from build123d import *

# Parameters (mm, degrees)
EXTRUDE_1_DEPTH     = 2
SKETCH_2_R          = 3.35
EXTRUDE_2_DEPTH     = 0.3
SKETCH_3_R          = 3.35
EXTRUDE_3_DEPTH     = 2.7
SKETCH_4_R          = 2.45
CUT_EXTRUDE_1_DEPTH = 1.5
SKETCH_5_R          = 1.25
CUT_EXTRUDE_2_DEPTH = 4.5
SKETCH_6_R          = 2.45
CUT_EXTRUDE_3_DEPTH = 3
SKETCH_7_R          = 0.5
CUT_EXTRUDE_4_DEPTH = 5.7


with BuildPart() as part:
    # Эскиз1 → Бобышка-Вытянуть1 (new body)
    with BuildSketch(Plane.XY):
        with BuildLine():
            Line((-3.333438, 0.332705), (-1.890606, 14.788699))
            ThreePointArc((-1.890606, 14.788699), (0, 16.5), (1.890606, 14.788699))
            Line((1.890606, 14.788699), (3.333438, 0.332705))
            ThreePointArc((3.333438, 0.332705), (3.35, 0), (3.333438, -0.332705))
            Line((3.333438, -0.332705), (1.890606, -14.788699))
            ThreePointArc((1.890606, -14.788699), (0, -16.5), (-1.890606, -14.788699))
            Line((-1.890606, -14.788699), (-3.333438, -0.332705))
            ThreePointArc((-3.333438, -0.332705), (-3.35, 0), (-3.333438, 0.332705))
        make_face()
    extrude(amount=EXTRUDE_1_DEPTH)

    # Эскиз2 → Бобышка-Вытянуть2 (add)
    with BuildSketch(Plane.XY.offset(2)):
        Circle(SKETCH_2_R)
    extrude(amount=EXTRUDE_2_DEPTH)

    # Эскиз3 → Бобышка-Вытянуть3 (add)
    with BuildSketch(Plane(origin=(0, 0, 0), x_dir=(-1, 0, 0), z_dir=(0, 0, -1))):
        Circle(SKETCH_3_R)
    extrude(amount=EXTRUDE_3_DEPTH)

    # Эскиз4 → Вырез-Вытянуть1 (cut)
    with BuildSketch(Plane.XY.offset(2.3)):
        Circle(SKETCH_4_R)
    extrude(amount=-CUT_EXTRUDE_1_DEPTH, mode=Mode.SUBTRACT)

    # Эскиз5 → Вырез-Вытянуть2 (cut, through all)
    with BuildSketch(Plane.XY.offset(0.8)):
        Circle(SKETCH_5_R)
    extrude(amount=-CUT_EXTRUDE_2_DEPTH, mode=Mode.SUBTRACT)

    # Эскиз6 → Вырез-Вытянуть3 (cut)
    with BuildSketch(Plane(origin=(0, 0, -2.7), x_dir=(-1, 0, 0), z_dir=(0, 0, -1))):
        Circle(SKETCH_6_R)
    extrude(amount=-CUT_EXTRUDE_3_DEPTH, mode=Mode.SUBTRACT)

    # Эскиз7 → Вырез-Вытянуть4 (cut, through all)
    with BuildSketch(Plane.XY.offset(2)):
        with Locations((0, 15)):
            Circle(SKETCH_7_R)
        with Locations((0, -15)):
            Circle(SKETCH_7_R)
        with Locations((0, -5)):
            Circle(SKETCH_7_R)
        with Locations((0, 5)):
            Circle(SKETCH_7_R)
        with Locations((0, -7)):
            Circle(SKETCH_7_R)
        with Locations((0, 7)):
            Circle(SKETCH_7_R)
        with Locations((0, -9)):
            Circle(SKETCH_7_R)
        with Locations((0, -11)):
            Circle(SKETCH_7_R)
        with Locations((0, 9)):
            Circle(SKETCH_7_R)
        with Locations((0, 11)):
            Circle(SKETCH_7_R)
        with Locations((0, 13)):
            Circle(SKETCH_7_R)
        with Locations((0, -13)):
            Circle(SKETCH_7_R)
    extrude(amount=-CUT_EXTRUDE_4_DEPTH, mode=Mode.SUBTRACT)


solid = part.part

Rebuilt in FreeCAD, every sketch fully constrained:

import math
import FreeCAD as App
import Part
import Sketcher

V = App.Vector

doc = App.newDocument("Part")
body = doc.addObject("PartDesign::Body", "Body")

sketch1 = body.newObject("Sketcher::SketchObject", "Sketch")
sketch1.AttachmentSupport = (doc.getObject("XY_Plane"), [""])
sketch1.MapMode = "FlatFace"
sketch1.addGeometry([
    Part.LineSegment(V(-1.890606, 14.788699, 0), V(-3.333438, 0.332705, 0)),
    Part.ArcOfCircle(Part.Circle(V(0.000046, 0, 0), V(0, 0, 1), 3.350046), math.radians(174.300356), math.radians(185.699644)),
    Part.LineSegment(V(-3.333438, -0.332705, 0), V(-1.890606, -14.788699, 0)),
    Part.ArcOfCircle(Part.Circle(V(0, -14.6, 0), V(0, 0, 1), 1.9), math.radians(-174.300271), math.radians(-5.699729)),
    Part.LineSegment(V(1.890606, -14.788699, 0), V(3.333438, -0.332705, 0)),
    Part.ArcOfCircle(Part.Circle(V(-0.000046, 0, 0), V(0, 0, 1), 3.350046), math.radians(-5.699644), math.radians(5.699644)),
    Part.LineSegment(V(3.333438, 0.332705, 0), V(1.890606, 14.788699, 0)),
    Part.ArcOfCircle(Part.Circle(V(0, 14.6, 0), V(0, 0, 1), 1.9), math.radians(5.699729), math.radians(174.300271)),
], False)
sketch1.addConstraint([
    Sketcher.Constraint("Tangent", 0, 2, 1, 1),
    Sketcher.Constraint("Tangent", 1, 2, 2, 1),
    Sketcher.Constraint("Tangent", 2, 2, 3, 1),
    Sketcher.Constraint("Tangent", 3, 2, 4, 1),
    Sketcher.Constraint("Tangent", 4, 2, 5, 1),
    Sketcher.Constraint("Tangent", 5, 2, 6, 1),
    Sketcher.Constraint("Tangent", 6, 2, 7, 1),
    Sketcher.Constraint("Tangent", 7, 2, 0, 1),
    Sketcher.Constraint("Equal", 1, 5),
    Sketcher.Constraint("Equal", 3, 7),
    Sketcher.Constraint("Symmetric", 1, 3, 5, 3, -1, 1),
    Sketcher.Constraint("Symmetric", 3, 3, 7, 3, -1, 1),
    Sketcher.Constraint("Symmetric", 2, 2, 3, 2, -2),
    Sketcher.Constraint("Radius", 3, 1.9),
    Sketcher.Constraint("DistanceY", 3, 3, -1, 1, 14.6),
    Sketcher.Constraint("Radius", 1, 3.350046),
    Sketcher.Constraint("DistanceY", 2, 2, -1, 1, 14.788699),
])
pad1 = body.newObject("PartDesign::Pad", "Pad")
pad1.Profile = sketch1
pad1.Length = 2

sketch2 = body.newObject("Sketcher::SketchObject", "Sketch001")
sketch2.AttachmentSupport = (doc.getObject("XY_Plane"), [""])
sketch2.MapMode = "FlatFace"
sketch2.AttachmentOffset = App.Placement(V(0, 0, 2), App.Rotation())
sketch2.addGeometry(Part.Circle(V(0, 0, 0), V(0, 0, 1), 3.35), False)
sketch2.addConstraint([
    Sketcher.Constraint("Coincident", 0, 3, -1, 1),
    Sketcher.Constraint("Diameter", 0, 6.7),
])
pad2 = body.newObject("PartDesign::Pad", "Pad001")
pad2.Profile = sketch2
pad2.Length = 0.3

sketch3 = body.newObject("Sketcher::SketchObject", "Sketch002")
sketch3.AttachmentSupport = (doc.getObject("XY_Plane"), [""])
sketch3.MapMode = "FlatFace"
sketch3.addGeometry(Part.Circle(V(0, 0, 0), V(0, 0, 1), 3.35), False)
sketch3.addConstraint([
    Sketcher.Constraint("Coincident", 0, 3, -1, 1),
    Sketcher.Constraint("Diameter", 0, 6.7),
])
pad3 = body.newObject("PartDesign::Pad", "Pad002")
pad3.Profile = sketch3
pad3.Length = 2.7
pad3.Reversed = True

sketch4 = body.newObject("Sketcher::SketchObject", "Sketch003")
sketch4.AttachmentSupport = (doc.getObject("XY_Plane"), [""])
sketch4.MapMode = "FlatFace"
sketch4.AttachmentOffset = App.Placement(V(0, 0, 2.3), App.Rotation())
sketch4.addGeometry(Part.Circle(V(0, 0, 0), V(0, 0, 1), 2.45), False)
sketch4.addConstraint([
    Sketcher.Constraint("Coincident", 0, 3, -1, 1),
    Sketcher.Constraint("Diameter", 0, 4.9),
])
pocket1 = body.newObject("PartDesign::Pocket", "Pocket")
pocket1.Profile = sketch4
pocket1.Length = 1.5

sketch5 = body.newObject("Sketcher::SketchObject", "Sketch004")
sketch5.AttachmentSupport = (doc.getObject("XY_Plane"), [""])
sketch5.MapMode = "FlatFace"
sketch5.AttachmentOffset = App.Placement(V(0, 0, 0.8), App.Rotation())
sketch5.addGeometry(Part.Circle(V(0, 0, 0), V(0, 0, 1), 1.25), False)
sketch5.addConstraint([
    Sketcher.Constraint("Coincident", 0, 3, -1, 1),
    Sketcher.Constraint("Diameter", 0, 2.5),
])
pocket2 = body.newObject("PartDesign::Pocket", "Pocket001")
pocket2.Profile = sketch5
pocket2.Type = "ThroughAll"

sketch6 = body.newObject("Sketcher::SketchObject", "Sketch005")
sketch6.AttachmentSupport = (doc.getObject("XY_Plane"), [""])
sketch6.MapMode = "FlatFace"
sketch6.AttachmentOffset = App.Placement(V(0, 0, -2.7), App.Rotation())
sketch6.addGeometry(Part.Circle(V(0, 0, 0), V(0, 0, 1), 2.45), False)
sketch6.addConstraint([
    Sketcher.Constraint("Coincident", 0, 3, -1, 1),
    Sketcher.Constraint("Diameter", 0, 4.9),
])
pocket3 = body.newObject("PartDesign::Pocket", "Pocket002")
pocket3.Profile = sketch6
pocket3.Length = 3
pocket3.Reversed = True

sketch7 = body.newObject("Sketcher::SketchObject", "Sketch006")
sketch7.AttachmentSupport = (doc.getObject("XY_Plane"), [""])
sketch7.MapMode = "FlatFace"
sketch7.AttachmentOffset = App.Placement(V(0, 0, 2), App.Rotation())
sketch7.addGeometry([
    Part.Circle(V(0, 15, 0), V(0, 0, 1), 0.5),
    Part.Circle(V(0, -15, 0), V(0, 0, 1), 0.5),
    Part.Circle(V(0, -5, 0), V(0, 0, 1), 0.5),
    Part.Circle(V(0, 5, 0), V(0, 0, 1), 0.5),
    Part.Circle(V(0, -7, 0), V(0, 0, 1), 0.5),
    Part.Circle(V(0, 7, 0), V(0, 0, 1), 0.5),
    Part.Circle(V(0, -9, 0), V(0, 0, 1), 0.5),
    Part.Circle(V(0, -11, 0), V(0, 0, 1), 0.5),
    Part.Circle(V(0, 9, 0), V(0, 0, 1), 0.5),
    Part.Circle(V(0, 11, 0), V(0, 0, 1), 0.5),
    Part.Circle(V(0, 13, 0), V(0, 0, 1), 0.5),
    Part.Circle(V(0, -13, 0), V(0, 0, 1), 0.5),
], False)
sketch7.addConstraint([
    Sketcher.Constraint("Equal", 0, 1),
    Sketcher.Constraint("Equal", 1, 2),
    Sketcher.Constraint("Equal", 2, 3),
    Sketcher.Constraint("Equal", 3, 4),
    Sketcher.Constraint("Equal", 4, 5),
    Sketcher.Constraint("Equal", 5, 6),
    Sketcher.Constraint("Equal", 6, 7),
    Sketcher.Constraint("Equal", 7, 8),
    Sketcher.Constraint("Equal", 8, 9),
    Sketcher.Constraint("Equal", 9, 10),
    Sketcher.Constraint("Equal", 10, 11),
    Sketcher.Constraint("Symmetric", 0, 3, 1, 3, -1, 1),
    Sketcher.Constraint("Symmetric", 2, 3, 3, 3, -1, 1),
    Sketcher.Constraint("Symmetric", 4, 3, 5, 3, -1, 1),
    Sketcher.Constraint("Symmetric", 6, 3, 8, 3, -1, 1),
    Sketcher.Constraint("Symmetric", 7, 3, 9, 3, -1, 1),
    Sketcher.Constraint("Symmetric", 10, 3, 11, 3, -1, 1),
    Sketcher.Constraint("PointOnObject", 0, 3, -2),
    Sketcher.Constraint("PointOnObject", 2, 3, -2),
    Sketcher.Constraint("PointOnObject", 4, 3, -2),
    Sketcher.Constraint("PointOnObject", 6, 3, -2),
    Sketcher.Constraint("PointOnObject", 7, 3, -2),
    Sketcher.Constraint("PointOnObject", 10, 3, -2),
    Sketcher.Constraint("Diameter", 0, 1.0),
    Sketcher.Constraint("DistanceY", -1, 1, 0, 3, 15.0),
    Sketcher.Constraint("DistanceY", 2, 3, -1, 1, 5.0),
    Sketcher.Constraint("DistanceY", 4, 3, -1, 1, 7.0),
    Sketcher.Constraint("DistanceY", 6, 3, -1, 1, 9.0),
    Sketcher.Constraint("DistanceY", 7, 3, -1, 1, 11.0),
    Sketcher.Constraint("DistanceY", -1, 1, 10, 3, 13.0),
])
pocket4 = body.newObject("PartDesign::Pocket", "Pocket003")
pocket4.Profile = sketch7
pocket4.Type = "ThroughAll"

doc.recompute()
